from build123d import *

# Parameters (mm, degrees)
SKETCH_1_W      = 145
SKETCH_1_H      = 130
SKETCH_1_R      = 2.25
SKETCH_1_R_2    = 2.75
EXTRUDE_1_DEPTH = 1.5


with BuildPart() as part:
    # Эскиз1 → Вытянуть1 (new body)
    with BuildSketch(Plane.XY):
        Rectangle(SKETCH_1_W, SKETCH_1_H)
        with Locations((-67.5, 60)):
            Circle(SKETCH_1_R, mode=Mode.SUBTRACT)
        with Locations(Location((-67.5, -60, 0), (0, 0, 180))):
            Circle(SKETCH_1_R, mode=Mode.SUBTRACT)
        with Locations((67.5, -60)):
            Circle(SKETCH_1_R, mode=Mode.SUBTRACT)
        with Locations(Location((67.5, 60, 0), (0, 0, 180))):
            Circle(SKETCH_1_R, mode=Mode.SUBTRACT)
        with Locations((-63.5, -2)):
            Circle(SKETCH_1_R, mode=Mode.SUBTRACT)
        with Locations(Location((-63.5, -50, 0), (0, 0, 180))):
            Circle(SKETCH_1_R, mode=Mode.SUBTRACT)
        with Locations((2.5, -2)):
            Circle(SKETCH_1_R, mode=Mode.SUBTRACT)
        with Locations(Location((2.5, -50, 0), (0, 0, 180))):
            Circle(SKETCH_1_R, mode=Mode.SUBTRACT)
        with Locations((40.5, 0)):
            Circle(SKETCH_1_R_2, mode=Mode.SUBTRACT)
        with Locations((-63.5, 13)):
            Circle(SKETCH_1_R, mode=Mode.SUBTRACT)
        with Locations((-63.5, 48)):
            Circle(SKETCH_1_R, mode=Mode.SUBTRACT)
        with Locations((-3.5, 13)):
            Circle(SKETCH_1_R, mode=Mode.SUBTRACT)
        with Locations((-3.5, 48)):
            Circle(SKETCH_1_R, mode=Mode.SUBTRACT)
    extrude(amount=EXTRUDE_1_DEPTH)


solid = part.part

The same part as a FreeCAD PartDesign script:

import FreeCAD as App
import Part
import Sketcher


def add_polygon(sketch, points):
    """Adds a closed chain of lines whose ends are joined by coincident constraints."""
    first, n = sketch.GeometryCount, len(points)
    for a, b in zip(points, points[1:] + points[:1]):
        sketch.addGeometry(Part.LineSegment(App.Vector(*a, 0), App.Vector(*b, 0)), False)
    for i in range(n):
        sketch.addConstraint(Sketcher.Constraint("Coincident", first + i, 2, first + (i + 1) % n, 1))

doc = App.newDocument("Part")
body = doc.addObject("PartDesign::Body", "Body")

# Sketch on XY plane
sketch1 = doc.addObject("Sketcher::SketchObject", "Sketch")
body.addObject(sketch1)
sketch1.AttachmentSupport = (doc.XY_Plane, [""])
sketch1.MapMode = "FlatFace"
add_polygon(sketch1, [(-72.5, 65), (-72.5, -65), (72.5, -65), (72.5, 65)])  # lines 0-3
sketch1.addGeometry(Part.Circle(App.Vector(-67.5, -60, 0), App.Vector(0, 0, 1), 2.2), False)  # 4
sketch1.addGeometry(Part.Circle(App.Vector(-63.5, -50, 0), App.Vector(0, 0, 1), 2.2), False)  # 5
sketch1.addGeometry(Part.Circle(App.Vector(-63.5, -2, 0), App.Vector(0, 0, 1), 2.2), False)  # 6
sketch1.addGeometry(Part.Circle(App.Vector(2.5, -50, 0), App.Vector(0, 0, 1), 2.2), False)  # 7
sketch1.addGeometry(Part.Circle(App.Vector(67.5, -60, 0), App.Vector(0, 0, 1), 2.2), False)  # 8
sketch1.addGeometry(Part.Circle(App.Vector(2.5, -2, 0), App.Vector(0, 0, 1), 2.2), False)  # 9
sketch1.addGeometry(Part.Circle(App.Vector(40.5, 0, 0), App.Vector(0, 0, 1), 2.8), False)  # 10
sketch1.addGeometry(Part.Circle(App.Vector(-63.5, 13, 0), App.Vector(0, 0, 1), 2.2), False)  # 11
sketch1.addGeometry(Part.Circle(App.Vector(-3.5, 13, 0), App.Vector(0, 0, 1), 2.2), False)  # 12
sketch1.addGeometry(Part.Circle(App.Vector(-63.5, 48, 0), App.Vector(0, 0, 1), 2.2), False)  # 13
sketch1.addGeometry(Part.Circle(App.Vector(-67.5, 60, 0), App.Vector(0, 0, 1), 2.2), False)  # 14
sketch1.addGeometry(Part.Circle(App.Vector(-3.5, 48, 0), App.Vector(0, 0, 1), 2.2), False)  # 15
sketch1.addGeometry(Part.Circle(App.Vector(67.5, 60, 0), App.Vector(0, 0, 1), 2.2), False)  # 16
sketch1.addConstraint(Sketcher.Constraint("Vertical", 0))
sketch1.addConstraint(Sketcher.Constraint("Horizontal", 1))
sketch1.addConstraint(Sketcher.Constraint("Vertical", 2))
sketch1.addConstraint(Sketcher.Constraint("Horizontal", 3))
sketch1.addConstraint(Sketcher.Constraint("Equal", 4, 5))
sketch1.addConstraint(Sketcher.Constraint("Equal", 5, 6))
sketch1.addConstraint(Sketcher.Constraint("Equal", 6, 7))
sketch1.addConstraint(Sketcher.Constraint("Equal", 7, 8))
sketch1.addConstraint(Sketcher.Constraint("Equal", 8, 9))
sketch1.addConstraint(Sketcher.Constraint("Equal", 9, 11))
sketch1.addConstraint(Sketcher.Constraint("Equal", 11, 12))
sketch1.addConstraint(Sketcher.Constraint("Equal", 12, 13))
sketch1.addConstraint(Sketcher.Constraint("Equal", 13, 14))
sketch1.addConstraint(Sketcher.Constraint("Equal", 14, 15))
sketch1.addConstraint(Sketcher.Constraint("Equal", 15, 16))
sketch1.addConstraint(Sketcher.Constraint("Symmetric", 8, 3, 14, 3, -1, 1))
sketch1.addConstraint(Sketcher.Constraint("Symmetric", 4, 3, 16, 3, -1, 1))
sketch1.addConstraint(Sketcher.Constraint("Symmetric", 0, 2, 2, 2, -1, 1))
sketch1.addConstraint(Sketcher.Constraint("Symmetric", 4, 3, 8, 3, -2))
sketch1.addConstraint(Sketcher.Constraint("PointOnObject", 10, 3, -1))
sketch1.addConstraint(Sketcher.Constraint("Horizontal", 5, 3, 7, 3))
sketch1.addConstraint(Sketcher.Constraint("Horizontal", 6, 3, 9, 3))
sketch1.addConstraint(Sketcher.Constraint("Horizontal", 11, 3, 12, 3))
sketch1.addConstraint(Sketcher.Constraint("Horizontal", 13, 3, 15, 3))
sketch1.addConstraint(Sketcher.Constraint("Vertical", 5, 3, 6, 3))
sketch1.addConstraint(Sketcher.Constraint("Vertical", 7, 3, 9, 3))
sketch1.addConstraint(Sketcher.Constraint("Vertical", 6, 3, 11, 3))
sketch1.addConstraint(Sketcher.Constraint("Vertical", 11, 3, 13, 3))
sketch1.addConstraint(Sketcher.Constraint("Vertical", 12, 3, 15, 3))
sketch1.addConstraint(Sketcher.Constraint("Diameter", 4, 4.5))
sketch1.addConstraint(Sketcher.Constraint("Diameter", 10, 5.5))
sketch1.addConstraint(Sketcher.Constraint("DistanceX", 1, 1, 1, 2, 145.0))
sketch1.addConstraint(Sketcher.Constraint("DistanceY", 0, 2, 0, 1, 130.0))
sketch1.addConstraint(Sketcher.Constraint("DistanceY", 4, 3, -1, 1, 60.0))
sketch1.addConstraint(Sketcher.Constraint("DistanceY", 5, 3, -1, 1, 50.0))
sketch1.addConstraint(Sketcher.Constraint("DistanceY", 6, 3, -1, 1, 2.0))
sketch1.addConstraint(Sketcher.Constraint("DistanceY", -1, 1, 11, 3, 13.0))
sketch1.addConstraint(Sketcher.Constraint("DistanceY", -1, 1, 13, 3, 48.0))
sketch1.addConstraint(Sketcher.Constraint("DistanceX", 4, 3, 5, 3, 4.0))
sketch1.addConstraint(Sketcher.Constraint("DistanceX", 5, 3, 7, 3, 66.0))
sketch1.addConstraint(Sketcher.Constraint("DistanceX", 7, 3, 8, 3, 65.0))
sketch1.addConstraint(Sketcher.Constraint("DistanceX", 9, 3, 10, 3, 38.0))
sketch1.addConstraint(Sketcher.Constraint("DistanceX", 12, 3, 9, 3, 6.0))
pad1 = doc.addObject("PartDesign::Pad", "Pad")
body.addObject(pad1)
pad1.Profile = sketch1
pad1.Length = 1.5

doc.recompute()
